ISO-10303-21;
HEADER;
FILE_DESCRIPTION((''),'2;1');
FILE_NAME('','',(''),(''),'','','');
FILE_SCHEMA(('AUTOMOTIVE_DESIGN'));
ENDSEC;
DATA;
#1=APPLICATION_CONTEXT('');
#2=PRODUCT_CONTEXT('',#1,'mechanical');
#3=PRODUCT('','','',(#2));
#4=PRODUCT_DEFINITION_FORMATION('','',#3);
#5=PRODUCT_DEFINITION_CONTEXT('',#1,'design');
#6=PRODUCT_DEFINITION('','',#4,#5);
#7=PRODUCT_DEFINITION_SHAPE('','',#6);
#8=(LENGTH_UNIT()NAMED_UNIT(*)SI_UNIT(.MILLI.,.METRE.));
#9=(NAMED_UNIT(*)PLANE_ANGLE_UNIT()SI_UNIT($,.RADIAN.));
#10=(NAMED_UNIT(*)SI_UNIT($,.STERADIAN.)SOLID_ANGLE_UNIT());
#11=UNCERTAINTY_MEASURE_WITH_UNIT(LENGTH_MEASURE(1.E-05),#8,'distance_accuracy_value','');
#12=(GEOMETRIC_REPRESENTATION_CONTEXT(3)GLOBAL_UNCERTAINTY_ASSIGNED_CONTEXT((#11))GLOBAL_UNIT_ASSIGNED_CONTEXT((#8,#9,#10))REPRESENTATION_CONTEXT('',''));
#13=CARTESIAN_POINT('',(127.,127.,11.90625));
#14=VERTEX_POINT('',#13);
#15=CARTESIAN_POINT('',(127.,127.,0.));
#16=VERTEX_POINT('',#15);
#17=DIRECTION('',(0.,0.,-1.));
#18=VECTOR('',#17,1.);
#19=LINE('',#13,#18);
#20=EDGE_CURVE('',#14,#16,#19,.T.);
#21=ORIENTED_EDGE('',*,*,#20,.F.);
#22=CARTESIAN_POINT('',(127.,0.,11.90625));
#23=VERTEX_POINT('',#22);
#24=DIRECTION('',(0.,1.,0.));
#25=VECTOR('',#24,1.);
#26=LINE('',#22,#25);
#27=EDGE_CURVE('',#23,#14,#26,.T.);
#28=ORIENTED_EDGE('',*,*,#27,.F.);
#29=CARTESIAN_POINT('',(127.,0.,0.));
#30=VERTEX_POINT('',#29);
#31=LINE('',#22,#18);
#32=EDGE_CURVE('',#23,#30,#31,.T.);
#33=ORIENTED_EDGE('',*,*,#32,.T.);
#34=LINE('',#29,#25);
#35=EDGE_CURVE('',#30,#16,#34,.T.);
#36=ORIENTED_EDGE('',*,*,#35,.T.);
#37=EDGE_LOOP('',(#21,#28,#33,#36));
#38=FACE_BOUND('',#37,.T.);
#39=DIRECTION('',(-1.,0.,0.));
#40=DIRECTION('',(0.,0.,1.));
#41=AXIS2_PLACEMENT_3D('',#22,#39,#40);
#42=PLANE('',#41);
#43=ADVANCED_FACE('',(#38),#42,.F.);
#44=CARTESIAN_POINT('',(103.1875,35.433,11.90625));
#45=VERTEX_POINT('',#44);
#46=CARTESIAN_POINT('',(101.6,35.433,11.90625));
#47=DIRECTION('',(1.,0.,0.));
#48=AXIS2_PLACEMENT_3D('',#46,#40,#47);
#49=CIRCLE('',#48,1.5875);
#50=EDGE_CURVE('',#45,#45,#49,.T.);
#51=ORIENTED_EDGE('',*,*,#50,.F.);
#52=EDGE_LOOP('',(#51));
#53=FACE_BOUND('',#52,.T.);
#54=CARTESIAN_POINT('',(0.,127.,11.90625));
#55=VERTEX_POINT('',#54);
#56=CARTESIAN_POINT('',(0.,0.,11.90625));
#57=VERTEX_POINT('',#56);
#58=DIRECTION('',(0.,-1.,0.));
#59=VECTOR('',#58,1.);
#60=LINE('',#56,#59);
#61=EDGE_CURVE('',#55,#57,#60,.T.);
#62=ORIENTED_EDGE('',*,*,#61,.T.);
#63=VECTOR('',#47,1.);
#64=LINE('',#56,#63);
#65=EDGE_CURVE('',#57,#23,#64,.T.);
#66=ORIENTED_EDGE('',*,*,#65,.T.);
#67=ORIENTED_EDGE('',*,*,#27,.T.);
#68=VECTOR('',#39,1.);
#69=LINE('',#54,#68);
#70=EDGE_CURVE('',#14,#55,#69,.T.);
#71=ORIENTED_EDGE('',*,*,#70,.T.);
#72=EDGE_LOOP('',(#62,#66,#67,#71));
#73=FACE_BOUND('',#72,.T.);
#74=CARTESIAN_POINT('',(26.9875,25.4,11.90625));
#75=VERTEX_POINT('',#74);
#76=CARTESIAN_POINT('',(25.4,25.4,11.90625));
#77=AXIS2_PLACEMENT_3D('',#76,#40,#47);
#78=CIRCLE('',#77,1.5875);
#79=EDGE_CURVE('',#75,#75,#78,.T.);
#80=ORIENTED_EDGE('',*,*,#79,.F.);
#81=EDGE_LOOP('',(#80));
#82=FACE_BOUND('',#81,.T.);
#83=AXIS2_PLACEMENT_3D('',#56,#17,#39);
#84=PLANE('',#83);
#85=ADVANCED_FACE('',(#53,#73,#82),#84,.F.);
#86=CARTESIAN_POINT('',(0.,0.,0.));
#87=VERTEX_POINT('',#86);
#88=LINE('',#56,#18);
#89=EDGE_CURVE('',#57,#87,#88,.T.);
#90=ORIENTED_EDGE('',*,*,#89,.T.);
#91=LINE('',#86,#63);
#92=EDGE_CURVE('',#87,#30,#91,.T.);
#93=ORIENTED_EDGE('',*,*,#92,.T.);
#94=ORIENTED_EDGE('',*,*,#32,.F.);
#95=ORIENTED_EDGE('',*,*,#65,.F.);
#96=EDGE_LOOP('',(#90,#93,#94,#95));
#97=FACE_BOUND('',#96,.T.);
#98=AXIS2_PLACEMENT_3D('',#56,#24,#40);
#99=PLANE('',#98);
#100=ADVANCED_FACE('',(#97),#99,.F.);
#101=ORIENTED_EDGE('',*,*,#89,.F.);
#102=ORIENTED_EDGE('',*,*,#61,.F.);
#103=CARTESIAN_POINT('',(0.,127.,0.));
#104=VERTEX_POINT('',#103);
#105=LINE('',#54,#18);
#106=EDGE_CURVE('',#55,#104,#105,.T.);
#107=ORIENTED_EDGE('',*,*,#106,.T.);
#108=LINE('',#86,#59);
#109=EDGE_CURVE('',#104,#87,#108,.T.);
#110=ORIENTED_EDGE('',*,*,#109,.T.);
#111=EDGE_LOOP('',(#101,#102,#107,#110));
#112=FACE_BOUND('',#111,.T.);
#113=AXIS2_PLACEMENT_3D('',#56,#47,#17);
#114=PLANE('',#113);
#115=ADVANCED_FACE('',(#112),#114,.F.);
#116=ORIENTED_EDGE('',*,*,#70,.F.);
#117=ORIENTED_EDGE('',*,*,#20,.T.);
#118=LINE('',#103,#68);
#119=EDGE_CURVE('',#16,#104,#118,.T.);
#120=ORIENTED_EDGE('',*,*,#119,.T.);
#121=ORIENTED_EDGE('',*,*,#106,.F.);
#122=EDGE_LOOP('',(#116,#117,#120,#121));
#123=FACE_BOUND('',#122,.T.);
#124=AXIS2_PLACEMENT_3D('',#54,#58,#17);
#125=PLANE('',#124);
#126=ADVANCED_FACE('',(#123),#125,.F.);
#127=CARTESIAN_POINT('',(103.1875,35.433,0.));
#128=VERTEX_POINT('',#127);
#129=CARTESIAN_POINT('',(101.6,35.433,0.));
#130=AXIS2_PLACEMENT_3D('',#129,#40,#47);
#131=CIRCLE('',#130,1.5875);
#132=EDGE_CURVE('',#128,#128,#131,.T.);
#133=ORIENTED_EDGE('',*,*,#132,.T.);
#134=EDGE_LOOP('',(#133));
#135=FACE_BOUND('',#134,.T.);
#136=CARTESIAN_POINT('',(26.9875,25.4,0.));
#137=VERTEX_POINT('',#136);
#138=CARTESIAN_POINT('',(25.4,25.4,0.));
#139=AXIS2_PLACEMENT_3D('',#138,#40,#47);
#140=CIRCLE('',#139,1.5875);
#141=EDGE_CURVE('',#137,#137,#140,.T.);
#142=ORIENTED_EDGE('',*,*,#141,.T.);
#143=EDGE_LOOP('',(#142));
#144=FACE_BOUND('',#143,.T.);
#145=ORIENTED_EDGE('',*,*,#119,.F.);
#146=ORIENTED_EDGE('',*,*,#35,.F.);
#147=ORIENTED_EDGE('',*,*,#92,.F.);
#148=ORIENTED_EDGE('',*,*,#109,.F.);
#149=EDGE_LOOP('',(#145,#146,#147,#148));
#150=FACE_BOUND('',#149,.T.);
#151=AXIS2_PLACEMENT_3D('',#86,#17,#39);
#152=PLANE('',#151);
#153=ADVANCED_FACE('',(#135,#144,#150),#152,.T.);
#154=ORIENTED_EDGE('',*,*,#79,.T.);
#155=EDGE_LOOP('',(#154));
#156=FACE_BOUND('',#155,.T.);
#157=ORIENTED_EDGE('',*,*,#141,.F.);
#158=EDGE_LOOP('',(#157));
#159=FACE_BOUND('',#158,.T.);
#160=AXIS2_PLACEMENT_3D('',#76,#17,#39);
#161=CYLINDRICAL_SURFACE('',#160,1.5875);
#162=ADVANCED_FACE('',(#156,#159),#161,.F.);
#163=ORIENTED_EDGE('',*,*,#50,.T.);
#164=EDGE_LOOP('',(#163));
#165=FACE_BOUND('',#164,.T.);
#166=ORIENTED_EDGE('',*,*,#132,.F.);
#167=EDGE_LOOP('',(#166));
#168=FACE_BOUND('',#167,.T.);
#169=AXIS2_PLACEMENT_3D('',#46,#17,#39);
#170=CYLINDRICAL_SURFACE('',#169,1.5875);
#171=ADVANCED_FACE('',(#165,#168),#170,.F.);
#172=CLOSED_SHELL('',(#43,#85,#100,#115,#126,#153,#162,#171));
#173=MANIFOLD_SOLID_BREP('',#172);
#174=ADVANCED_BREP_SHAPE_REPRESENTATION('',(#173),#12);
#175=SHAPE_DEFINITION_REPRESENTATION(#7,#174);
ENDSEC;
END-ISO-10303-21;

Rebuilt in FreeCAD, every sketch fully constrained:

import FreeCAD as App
import Part
import Sketcher
from FreeCAD import Vector
Q = App.Units.Quantity


def add_polygon(sketch, points):
    """Adds a closed chain of lines whose ends are joined by coincident constraints."""
    first, n = sketch.GeometryCount, len(points)
    for a, b in zip(points, points[1:] + points[:1]):
        sketch.addGeometry(Part.LineSegment(App.Vector(*a, 0), App.Vector(*b, 0)), False)
    for i in range(n):
        sketch.addConstraint(Sketcher.Constraint("Coincident", first + i, 2, first + (i + 1) % n, 1))

doc = App.newDocument("Part")
body = doc.addObject("PartDesign::Body", "Body")

# Sketch on XY plane
sketch1 = body.newObject("Sketcher::SketchObject", "Sketch")
sketch1.AttachmentSupport = (doc.getObject("XY_Plane"), [""])
sketch1.MapMode = "FlatFace"
add_polygon(sketch1, [(0, 127), (0, 0), (127, 0), (127, 127)])  # lines 0-3
sketch1.addGeometry(Part.Circle(Vector(25.4, 25.4, 0), Vector(0, 0, 1), 1.6), False)  # 4
sketch1.addGeometry(Part.Circle(Vector(101.6, 35.4, 0), Vector(0, 0, 1), 1.6), False)  # 5
sketch1.addConstraint([
    Sketcher.Constraint("Vertical", 0),
    Sketcher.Constraint("Horizontal", 1),
    Sketcher.Constraint("Vertical", 2),
    Sketcher.Constraint("Horizontal", 3),
    Sketcher.Constraint("Coincident", 0, 2, -1, 1),
    Sketcher.Constraint("Equal", 4, 5),
    Sketcher.Constraint("Equal", 3, 0),
    Sketcher.Constraint("DistanceX", 1, 1, 1, 2, Q("5 in")),
    Sketcher.Constraint("Diameter", 4, Q("0.125 in")),
    Sketcher.Constraint("DistanceX", -1, 1, 4, 3, Q("1 in")),
    Sketcher.Constraint("DistanceY", -1, 1, 4, 3, Q("1 in")),
    Sketcher.Constraint("DistanceX", -1, 1, 5, 3, Q("4 in")),
    Sketcher.Constraint("DistanceY", -1, 1, 5, 3, Q("1.395 in")),
])
pad1 = body.newObject("PartDesign::Pad", "Pad")
pad1.Profile = sketch1
pad1.Length = Q("0.46875 in")

doc.recompute()
